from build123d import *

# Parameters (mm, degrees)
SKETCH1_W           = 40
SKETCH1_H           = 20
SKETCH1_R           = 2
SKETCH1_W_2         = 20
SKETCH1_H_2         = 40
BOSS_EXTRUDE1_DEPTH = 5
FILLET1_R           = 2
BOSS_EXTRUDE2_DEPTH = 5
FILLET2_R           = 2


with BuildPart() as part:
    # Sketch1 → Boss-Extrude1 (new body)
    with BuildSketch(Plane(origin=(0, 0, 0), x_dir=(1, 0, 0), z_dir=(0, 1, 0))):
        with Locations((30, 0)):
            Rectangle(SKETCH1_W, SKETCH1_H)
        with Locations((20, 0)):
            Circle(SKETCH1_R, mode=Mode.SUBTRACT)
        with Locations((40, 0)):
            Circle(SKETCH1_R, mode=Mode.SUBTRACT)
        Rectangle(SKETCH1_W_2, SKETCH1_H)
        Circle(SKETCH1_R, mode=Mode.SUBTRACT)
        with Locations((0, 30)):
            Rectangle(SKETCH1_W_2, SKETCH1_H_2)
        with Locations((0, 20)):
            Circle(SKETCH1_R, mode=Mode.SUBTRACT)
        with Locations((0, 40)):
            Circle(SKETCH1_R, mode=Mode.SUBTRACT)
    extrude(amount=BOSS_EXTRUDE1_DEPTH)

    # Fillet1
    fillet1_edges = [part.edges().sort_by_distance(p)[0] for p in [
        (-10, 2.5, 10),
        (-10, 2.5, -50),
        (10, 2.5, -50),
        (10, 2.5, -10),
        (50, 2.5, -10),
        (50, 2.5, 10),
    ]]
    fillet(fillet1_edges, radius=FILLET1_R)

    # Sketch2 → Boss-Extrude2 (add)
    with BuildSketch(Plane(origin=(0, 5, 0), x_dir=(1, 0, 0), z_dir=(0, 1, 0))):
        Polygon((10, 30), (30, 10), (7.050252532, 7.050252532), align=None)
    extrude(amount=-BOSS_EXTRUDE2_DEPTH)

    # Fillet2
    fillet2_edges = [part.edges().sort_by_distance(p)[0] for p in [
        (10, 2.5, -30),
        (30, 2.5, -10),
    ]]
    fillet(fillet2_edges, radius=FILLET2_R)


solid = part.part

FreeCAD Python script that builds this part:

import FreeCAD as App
import Part
import Sketcher
from FreeCAD import Vector
Q = App.Units.Quantity


def edges_at(feature, points):
    """Names of the edges that pass closest to the given points."""
    edges = feature.Shape.Edges
    near = lambda p: min(range(len(edges)), key=lambda i: edges[i].distToShape(Part.Vertex(*p))[0])
    return sorted({f"Edge{near(p) + 1}" for p in points})

doc = App.newDocument("Part")
params = doc.addObject("Spreadsheet::Sheet", "Params")
for row, (alias, value) in enumerate([
    ("sketch1_diameter", "4 mm"),
    ("sketch1_width", "40 mm"),
    ("sketch1_width2", "20 mm"),
    ("pad1_length", "5 mm"),
    ("fillet_radius", "2 mm"),
    ("pad2_length", "5 mm"),
    ("fillet2_radius", "2 mm"),
], start=1):
    params.set(f"A{row}", alias)
    params.set(f"B{row}", "=" + value)
    params.setAlias(f"B{row}", alias)

body = doc.addObject("PartDesign::Body", "Body")

sketch1 = doc.addObject("Sketcher::SketchObject", "Sketch")
body.addObject(sketch1)
sketch1.AttachmentSupport = (doc.XZ_Plane, [""])
sketch1.MapMode = "FlatFace"
sketch1.addGeometry([
    Part.LineSegment(Vector(50, 10, 0), Vector(50, -10, 0)),
    Part.LineSegment(Vector(50, -10, 0), Vector(10, -10, 0)),
    Part.LineSegment(Vector(10, -10, 0), Vector(10, -50, 0)),
    Part.LineSegment(Vector(10, -50, 0), Vector(-10, -50, 0)),
    Part.LineSegment(Vector(-10, -50, 0), Vector(-10, 10, 0)),
    Part.LineSegment(Vector(-10, 10, 0), Vector(50, 10, 0)),
    Part.Circle(Vector(0, 0, 0), Vector(0, 0, 1), 2),
    Part.Circle(Vector(20, 0, 0), Vector(0, 0, 1), 2),
    Part.Circle(Vector(40, 0, 0), Vector(0, 0, 1), 2),
    Part.Circle(Vector(0, -20, 0), Vector(0, 0, 1), 2),
    Part.Circle(Vector(0, -40, 0), Vector(0, 0, 1), 2),
], False)
sketch1.addConstraint([
    Sketcher.Constraint("Coincident", 0, 2, 1, 1),
    Sketcher.Constraint("Coincident", 1, 2, 2, 1),
    Sketcher.Constraint("Coincident", 2, 2, 3, 1),
    Sketcher.Constraint("Coincident", 3, 2, 4, 1),
    Sketcher.Constraint("Coincident", 4, 2, 5, 1),
    Sketcher.Constraint("Coincident", 5, 2, 0, 1),
    Sketcher.Constraint("Vertical", 0),
    Sketcher.Constraint("Horizontal", 1),
    Sketcher.Constraint("Vertical", 2),
    Sketcher.Constraint("Horizontal", 3),
    Sketcher.Constraint("Vertical", 4),
    Sketcher.Constraint("Horizontal", 5),
    Sketcher.Constraint("Coincident", 6, 3, -1, 1),
    Sketcher.Constraint("Equal", 6, 7),
    Sketcher.Constraint("Equal", 7, 8),
    Sketcher.Constraint("Equal", 8, 9),
    Sketcher.Constraint("Equal", 9, 10),
    Sketcher.Constraint("Symmetric", 1, 2, 4, 2, -1, 1),
    Sketcher.Constraint("PointOnObject", 7, 3, -1),
    Sketcher.Constraint("PointOnObject", 8, 3, -1),
    Sketcher.Constraint("PointOnObject", 9, 3, -2),
    Sketcher.Constraint("PointOnObject", 10, 3, -2),
    Sketcher.Constraint("Equal", 3, 0),
    Sketcher.Constraint("Equal", 1, 2),
    Sketcher.Constraint("Diameter", 6, 4.0),
    Sketcher.Constraint("DistanceX", 1, 2, 1, 1, 40.0),
    Sketcher.Constraint("DistanceX", 3, 2, 3, 1, 20.0),
    Sketcher.Constraint("DistanceX", -1, 1, 7, 3, 20.0),
    Sketcher.Constraint("DistanceX", -1, 1, 8, 3, 40.0),
    Sketcher.Constraint("DistanceY", 9, 3, -1, 1, 20.0),
    Sketcher.Constraint("DistanceY", 10, 3, -1, 1, 40.0),
])
sketch1.setExpression("Constraints[24]", "Params.sketch1_diameter")
sketch1.setExpression("Constraints[25]", "Params.sketch1_width")
sketch1.setExpression("Constraints[26]", "Params.sketch1_width2")
pad1 = doc.addObject("PartDesign::Pad", "Pad")
body.addObject(pad1)
pad1.Profile = sketch1
pad1.setExpression("Length", "Params.pad1_length")
pad1.Reversed = True
doc.recompute()

fillet = doc.addObject("PartDesign::Fillet", "Fillet")
body.addObject(fillet)
fillet.Base = (pad1, edges_at(pad1, [
    (-10, 2.5, 10),
    (-10, 2.5, -50),
    (10, 2.5, -50),
    (10, 2.5, -10),
    (50, 2.5, -10),
    (50, 2.5, 10),
]))
fillet.setExpression("Radius", "Params.fillet_radius")

sketch2 = doc.addObject("Sketcher::SketchObject", "Sketch001")
body.addObject(sketch2)
sketch2.AttachmentSupport = (doc.XZ_Plane, [""])
sketch2.MapMode = "FlatFace"
sketch2.AttachmentOffset = App.Placement(Vector(0, 0, -5), App.Rotation())
sketch2.addGeometry([
    Part.LineSegment(Vector(30, -10, 0), Vector(10, -30, 0)),
    Part.LineSegment(Vector(10, -30, 0), Vector(7, -7, 0)),
    Part.LineSegment(Vector(7, -7, 0), Vector(30, -10, 0)),
], False)
sketch2.addConstraint([
    Sketcher.Constraint("Coincident", 0, 2, 1, 1),
    Sketcher.Constraint("Coincident", 1, 2, 2, 1),
    Sketcher.Constraint("Coincident", 2, 2, 0, 1),
    Sketcher.Constraint("Equal", 1, 2),
    Sketcher.Constraint("Angle", 0, Q("-135 deg")),
    Sketcher.Constraint("DistanceX", -1, 1, 0, 2, 10.0),
    Sketcher.Constraint("DistanceY", 0, 2, -1, 1, 30.0),
    Sketcher.Constraint("DistanceX", -1, 1, 2, 2, 30.0),
    Sketcher.Constraint("Distance", 1, 23.138538),
])
pad2 = doc.addObject("PartDesign::Pad", "Pad001")
body.addObject(pad2)
pad2.Profile = sketch2
pad2.setExpression("Length", "Params.pad2_length")
doc.recompute()

fillet2 = doc.addObject("PartDesign::Fillet", "Fillet001")
body.addObject(fillet2)
fillet2.Base = (pad2, edges_at(pad2, [(10, 2.5, -30), (30, 2.5, -10)]))
fillet2.setExpression("Radius", "Params.fillet2_radius")

doc.recompute()
